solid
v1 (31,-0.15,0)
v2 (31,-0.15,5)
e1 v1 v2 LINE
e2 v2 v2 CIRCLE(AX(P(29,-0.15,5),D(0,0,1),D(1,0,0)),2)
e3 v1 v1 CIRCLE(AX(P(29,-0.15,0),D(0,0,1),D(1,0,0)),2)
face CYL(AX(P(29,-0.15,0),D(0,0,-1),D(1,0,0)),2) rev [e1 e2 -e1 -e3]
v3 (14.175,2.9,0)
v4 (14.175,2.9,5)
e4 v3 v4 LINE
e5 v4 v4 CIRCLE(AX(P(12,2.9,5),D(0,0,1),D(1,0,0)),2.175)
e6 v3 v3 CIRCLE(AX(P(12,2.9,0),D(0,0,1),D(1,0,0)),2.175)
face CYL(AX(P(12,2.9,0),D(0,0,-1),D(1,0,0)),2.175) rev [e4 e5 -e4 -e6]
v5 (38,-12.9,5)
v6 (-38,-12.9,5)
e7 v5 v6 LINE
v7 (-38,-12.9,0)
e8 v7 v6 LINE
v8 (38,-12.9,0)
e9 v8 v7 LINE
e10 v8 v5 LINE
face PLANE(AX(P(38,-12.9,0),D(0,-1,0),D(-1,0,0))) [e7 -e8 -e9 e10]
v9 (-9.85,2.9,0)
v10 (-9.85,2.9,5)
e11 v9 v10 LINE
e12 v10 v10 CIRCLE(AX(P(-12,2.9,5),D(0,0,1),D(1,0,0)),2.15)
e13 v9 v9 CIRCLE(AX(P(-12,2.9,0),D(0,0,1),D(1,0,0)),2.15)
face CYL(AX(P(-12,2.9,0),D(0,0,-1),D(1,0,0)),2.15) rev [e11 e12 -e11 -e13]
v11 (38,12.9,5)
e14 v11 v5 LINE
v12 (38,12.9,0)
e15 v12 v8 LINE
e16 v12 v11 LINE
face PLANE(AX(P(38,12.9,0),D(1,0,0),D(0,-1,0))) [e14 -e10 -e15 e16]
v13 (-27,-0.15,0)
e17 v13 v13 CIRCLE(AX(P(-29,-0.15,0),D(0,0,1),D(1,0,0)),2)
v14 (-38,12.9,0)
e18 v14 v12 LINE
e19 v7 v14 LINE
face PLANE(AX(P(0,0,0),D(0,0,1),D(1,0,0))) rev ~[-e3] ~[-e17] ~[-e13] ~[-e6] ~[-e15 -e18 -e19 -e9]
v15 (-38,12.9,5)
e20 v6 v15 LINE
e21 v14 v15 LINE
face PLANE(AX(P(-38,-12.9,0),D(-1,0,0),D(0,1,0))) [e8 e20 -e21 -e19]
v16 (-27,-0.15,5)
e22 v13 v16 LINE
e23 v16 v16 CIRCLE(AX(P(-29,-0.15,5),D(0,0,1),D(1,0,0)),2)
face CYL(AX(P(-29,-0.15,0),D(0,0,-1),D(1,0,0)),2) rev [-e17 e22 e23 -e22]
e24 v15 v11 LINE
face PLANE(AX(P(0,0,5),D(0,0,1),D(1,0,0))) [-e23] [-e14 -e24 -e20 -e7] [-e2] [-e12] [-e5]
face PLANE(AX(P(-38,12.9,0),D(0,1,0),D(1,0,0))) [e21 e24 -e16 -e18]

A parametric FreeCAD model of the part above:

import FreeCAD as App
import Part
import Sketcher

doc = App.newDocument("Part")
body = doc.addObject("PartDesign::Body", "Body")

# Sketch on XY plane
sketch1 = body.newObject("Sketcher::SketchObject", "Sketch")
sketch1.AttachmentSupport = (doc.getObject("XY_Plane"), [""])
sketch1.MapMode = "FlatFace"
sketch1.addGeometry(Part.LineSegment(App.Vector(38, 12.9, 0), App.Vector(-38, 12.9, 0)), False)
sketch1.addGeometry(Part.LineSegment(App.Vector(-38, 12.9, 0), App.Vector(-38, -12.9, 0)), False)
sketch1.addGeometry(Part.LineSegment(App.Vector(-38, -12.9, 0), App.Vector(38, -12.9, 0)), False)
sketch1.addGeometry(Part.LineSegment(App.Vector(38, -12.9, 0), App.Vector(38, 12.9, 0)), False)
sketch1.addGeometry(Part.Circle(App.Vector(-29, -0.1, 0), App.Vector(0, 0, 1), 2), False)
sketch1.addGeometry(Part.Circle(App.Vector(29, -0.1, 0), App.Vector(0, 0, 1), 2), False)
sketch1.addGeometry(Part.Circle(App.Vector(-12, 2.9, 0), App.Vector(0, 0, 1), 2.1), False)
sketch1.addGeometry(Part.Circle(App.Vector(12, 2.9, 0), App.Vector(0, 0, 1), 2.2), False)
sketch1.addConstraint(Sketcher.Constraint("Coincident", 0, 2, 1, 1))
sketch1.addConstraint(Sketcher.Constraint("Coincident", 1, 2, 2, 1))
sketch1.addConstraint(Sketcher.Constraint("Coincident", 2, 2, 3, 1))
sketch1.addConstraint(Sketcher.Constraint("Coincident", 3, 2, 0, 1))
sketch1.addConstraint(Sketcher.Constraint("Horizontal", 0))
sketch1.addConstraint(Sketcher.Constraint("Vertical", 1))
sketch1.addConstraint(Sketcher.Constraint("Horizontal", 2))
sketch1.addConstraint(Sketcher.Constraint("Vertical", 3))
sketch1.addConstraint(Sketcher.Constraint("Equal", 4, 5))
sketch1.addConstraint(Sketcher.Constraint("Symmetric", 0, 2, 2, 2, -1, 1))
sketch1.addConstraint(Sketcher.Constraint("Symmetric", 4, 3, 5, 3, -2))
sketch1.addConstraint(Sketcher.Constraint("Symmetric", 6, 3, 7, 3, -2))
sketch1.addConstraint(Sketcher.Constraint("Diameter", 4, 4.0))
sketch1.addConstraint(Sketcher.Constraint("Diameter", 6, 4.3))
sketch1.addConstraint(Sketcher.Constraint("Diameter", 7, 4.35))
sketch1.addConstraint(Sketcher.Constraint("DistanceX", 0, 2, 0, 1, 76.0))
sketch1.addConstraint(Sketcher.Constraint("DistanceY", 1, 2, 1, 1, 25.8))
sketch1.addConstraint(Sketcher.Constraint("DistanceX", 4, 3, -1, 1, 29.0))
sketch1.addConstraint(Sketcher.Constraint("DistanceX", 6, 3, -1, 1, 12.0))
sketch1.addConstraint(Sketcher.Constraint("DistanceY", 6, 3, 0, 2, 10.0))
sketch1.addConstraint(Sketcher.Constraint("DistanceY", 4, 3, -1, 1, 0.15))
pad1 = body.newObject("PartDesign::Pad", "Pad")
pad1.Profile = sketch1
pad1.Length = 5

doc.recompute()
